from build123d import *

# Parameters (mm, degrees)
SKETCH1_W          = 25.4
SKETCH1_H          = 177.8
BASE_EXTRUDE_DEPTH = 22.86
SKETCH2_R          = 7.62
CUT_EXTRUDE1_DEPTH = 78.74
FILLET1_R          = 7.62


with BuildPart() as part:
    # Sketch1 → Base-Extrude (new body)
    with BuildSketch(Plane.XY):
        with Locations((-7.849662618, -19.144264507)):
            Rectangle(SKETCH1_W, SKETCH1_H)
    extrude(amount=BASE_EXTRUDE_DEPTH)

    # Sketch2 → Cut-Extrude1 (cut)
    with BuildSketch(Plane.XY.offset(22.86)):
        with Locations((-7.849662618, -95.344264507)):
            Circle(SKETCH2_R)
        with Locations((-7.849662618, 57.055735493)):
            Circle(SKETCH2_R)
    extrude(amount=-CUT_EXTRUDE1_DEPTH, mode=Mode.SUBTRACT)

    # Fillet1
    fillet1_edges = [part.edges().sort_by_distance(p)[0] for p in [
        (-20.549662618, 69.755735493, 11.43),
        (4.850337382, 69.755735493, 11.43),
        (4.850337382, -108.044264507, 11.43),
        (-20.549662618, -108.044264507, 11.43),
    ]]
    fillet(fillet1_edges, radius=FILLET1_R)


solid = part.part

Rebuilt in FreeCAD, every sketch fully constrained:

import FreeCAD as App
import Part
import Sketcher

V = App.Vector
Q = App.Units.Quantity


def edges_at(feature, points):
    """Names of the edges that pass closest to the given points."""
    edges = feature.Shape.Edges
    near = lambda p: min(range(len(edges)), key=lambda i: edges[i].distToShape(Part.Vertex(*p))[0])
    return sorted({f"Edge{near(p) + 1}" for p in points})

doc = App.newDocument("Part")
body = doc.addObject("PartDesign::Body", "Body")

# Sketch on XY plane
sketch1 = body.newObject("Sketcher::SketchObject", "Sketch")
sketch1.AttachmentSupport = (doc.getObject("XY_Plane"), [""])
sketch1.MapMode = "FlatFace"
sketch1.addGeometry([
    Part.LineSegment(V(-21, 70, 0), V(-21, -108, 0)),
    Part.LineSegment(V(-21, -108, 0), V(5, -108, 0)),
    Part.LineSegment(V(5, -108, 0), V(5, 70, 0)),
    Part.LineSegment(V(5, 70, 0), V(-21, 70, 0)),
], False)
sketch1.addConstraint([
    Sketcher.Constraint("Coincident", 0, 2, 1, 1),
    Sketcher.Constraint("Coincident", 1, 2, 2, 1),
    Sketcher.Constraint("Coincident", 2, 2, 3, 1),
    Sketcher.Constraint("Coincident", 3, 2, 0, 1),
    Sketcher.Constraint("Vertical", 0),
    Sketcher.Constraint("Horizontal", 1),
    Sketcher.Constraint("Vertical", 2),
    Sketcher.Constraint("Horizontal", 3),
    Sketcher.Constraint("DistanceX", 1, 1, 1, 2, Q("1 in")),
    Sketcher.Constraint("DistanceY", 0, 2, 0, 1, Q("7 in")),
    Sketcher.Constraint("DistanceX", 0, 2, -1, 1, 20.549663),
    Sketcher.Constraint("DistanceY", 0, 2, -1, 1, 108.044265),
])
pad1 = body.newObject("PartDesign::Pad", "Pad")
pad1.Profile = sketch1
pad1.Length = Q("0.9 in")

# Sketch on XY plane
sketch2 = body.newObject("Sketcher::SketchObject", "Sketch001")
sketch2.AttachmentSupport = (doc.getObject("XY_Plane"), [""])
sketch2.MapMode = "FlatFace"
sketch2.AttachmentOffset = App.Placement(V(0, 0, 0.9 * 25.4), App.Rotation())
sketch2.addGeometry([
    Part.Circle(V(-8, -95, 0), V(0, 0, 1), 8),
    Part.Circle(V(-8, 57, 0), V(0, 0, 1), 8),
], False)
sketch2.addConstraint([
    Sketcher.Constraint("Equal", 0, 1),
    Sketcher.Constraint("Vertical", 0, 3, 1, 3),
    Sketcher.Constraint("Diameter", 0, Q("0.6 in")),
    Sketcher.Constraint("DistanceY", 0, 3, 1, 3, Q("6 in")),
    Sketcher.Constraint("DistanceX", 0, 3, -1, 1, 7.849663),
    Sketcher.Constraint("DistanceY", 0, 3, -1, 1, 95.344265),
])
pocket1 = body.newObject("PartDesign::Pocket", "Pocket")
pocket1.Profile = sketch2
pocket1.Length = Q("3.1 in")
doc.recompute()

fillet = body.newObject("PartDesign::Fillet", "Fillet")
fillet.Base = (pocket1, edges_at(pocket1, [
    (-20.55, 69.756, 11.43),
    (4.85, 69.756, 11.43),
    (4.85, -108.044, 11.43),
    (-20.55, -108.044, 11.43),
]))
fillet.Radius = Q("0.3 in")

doc.recompute()
